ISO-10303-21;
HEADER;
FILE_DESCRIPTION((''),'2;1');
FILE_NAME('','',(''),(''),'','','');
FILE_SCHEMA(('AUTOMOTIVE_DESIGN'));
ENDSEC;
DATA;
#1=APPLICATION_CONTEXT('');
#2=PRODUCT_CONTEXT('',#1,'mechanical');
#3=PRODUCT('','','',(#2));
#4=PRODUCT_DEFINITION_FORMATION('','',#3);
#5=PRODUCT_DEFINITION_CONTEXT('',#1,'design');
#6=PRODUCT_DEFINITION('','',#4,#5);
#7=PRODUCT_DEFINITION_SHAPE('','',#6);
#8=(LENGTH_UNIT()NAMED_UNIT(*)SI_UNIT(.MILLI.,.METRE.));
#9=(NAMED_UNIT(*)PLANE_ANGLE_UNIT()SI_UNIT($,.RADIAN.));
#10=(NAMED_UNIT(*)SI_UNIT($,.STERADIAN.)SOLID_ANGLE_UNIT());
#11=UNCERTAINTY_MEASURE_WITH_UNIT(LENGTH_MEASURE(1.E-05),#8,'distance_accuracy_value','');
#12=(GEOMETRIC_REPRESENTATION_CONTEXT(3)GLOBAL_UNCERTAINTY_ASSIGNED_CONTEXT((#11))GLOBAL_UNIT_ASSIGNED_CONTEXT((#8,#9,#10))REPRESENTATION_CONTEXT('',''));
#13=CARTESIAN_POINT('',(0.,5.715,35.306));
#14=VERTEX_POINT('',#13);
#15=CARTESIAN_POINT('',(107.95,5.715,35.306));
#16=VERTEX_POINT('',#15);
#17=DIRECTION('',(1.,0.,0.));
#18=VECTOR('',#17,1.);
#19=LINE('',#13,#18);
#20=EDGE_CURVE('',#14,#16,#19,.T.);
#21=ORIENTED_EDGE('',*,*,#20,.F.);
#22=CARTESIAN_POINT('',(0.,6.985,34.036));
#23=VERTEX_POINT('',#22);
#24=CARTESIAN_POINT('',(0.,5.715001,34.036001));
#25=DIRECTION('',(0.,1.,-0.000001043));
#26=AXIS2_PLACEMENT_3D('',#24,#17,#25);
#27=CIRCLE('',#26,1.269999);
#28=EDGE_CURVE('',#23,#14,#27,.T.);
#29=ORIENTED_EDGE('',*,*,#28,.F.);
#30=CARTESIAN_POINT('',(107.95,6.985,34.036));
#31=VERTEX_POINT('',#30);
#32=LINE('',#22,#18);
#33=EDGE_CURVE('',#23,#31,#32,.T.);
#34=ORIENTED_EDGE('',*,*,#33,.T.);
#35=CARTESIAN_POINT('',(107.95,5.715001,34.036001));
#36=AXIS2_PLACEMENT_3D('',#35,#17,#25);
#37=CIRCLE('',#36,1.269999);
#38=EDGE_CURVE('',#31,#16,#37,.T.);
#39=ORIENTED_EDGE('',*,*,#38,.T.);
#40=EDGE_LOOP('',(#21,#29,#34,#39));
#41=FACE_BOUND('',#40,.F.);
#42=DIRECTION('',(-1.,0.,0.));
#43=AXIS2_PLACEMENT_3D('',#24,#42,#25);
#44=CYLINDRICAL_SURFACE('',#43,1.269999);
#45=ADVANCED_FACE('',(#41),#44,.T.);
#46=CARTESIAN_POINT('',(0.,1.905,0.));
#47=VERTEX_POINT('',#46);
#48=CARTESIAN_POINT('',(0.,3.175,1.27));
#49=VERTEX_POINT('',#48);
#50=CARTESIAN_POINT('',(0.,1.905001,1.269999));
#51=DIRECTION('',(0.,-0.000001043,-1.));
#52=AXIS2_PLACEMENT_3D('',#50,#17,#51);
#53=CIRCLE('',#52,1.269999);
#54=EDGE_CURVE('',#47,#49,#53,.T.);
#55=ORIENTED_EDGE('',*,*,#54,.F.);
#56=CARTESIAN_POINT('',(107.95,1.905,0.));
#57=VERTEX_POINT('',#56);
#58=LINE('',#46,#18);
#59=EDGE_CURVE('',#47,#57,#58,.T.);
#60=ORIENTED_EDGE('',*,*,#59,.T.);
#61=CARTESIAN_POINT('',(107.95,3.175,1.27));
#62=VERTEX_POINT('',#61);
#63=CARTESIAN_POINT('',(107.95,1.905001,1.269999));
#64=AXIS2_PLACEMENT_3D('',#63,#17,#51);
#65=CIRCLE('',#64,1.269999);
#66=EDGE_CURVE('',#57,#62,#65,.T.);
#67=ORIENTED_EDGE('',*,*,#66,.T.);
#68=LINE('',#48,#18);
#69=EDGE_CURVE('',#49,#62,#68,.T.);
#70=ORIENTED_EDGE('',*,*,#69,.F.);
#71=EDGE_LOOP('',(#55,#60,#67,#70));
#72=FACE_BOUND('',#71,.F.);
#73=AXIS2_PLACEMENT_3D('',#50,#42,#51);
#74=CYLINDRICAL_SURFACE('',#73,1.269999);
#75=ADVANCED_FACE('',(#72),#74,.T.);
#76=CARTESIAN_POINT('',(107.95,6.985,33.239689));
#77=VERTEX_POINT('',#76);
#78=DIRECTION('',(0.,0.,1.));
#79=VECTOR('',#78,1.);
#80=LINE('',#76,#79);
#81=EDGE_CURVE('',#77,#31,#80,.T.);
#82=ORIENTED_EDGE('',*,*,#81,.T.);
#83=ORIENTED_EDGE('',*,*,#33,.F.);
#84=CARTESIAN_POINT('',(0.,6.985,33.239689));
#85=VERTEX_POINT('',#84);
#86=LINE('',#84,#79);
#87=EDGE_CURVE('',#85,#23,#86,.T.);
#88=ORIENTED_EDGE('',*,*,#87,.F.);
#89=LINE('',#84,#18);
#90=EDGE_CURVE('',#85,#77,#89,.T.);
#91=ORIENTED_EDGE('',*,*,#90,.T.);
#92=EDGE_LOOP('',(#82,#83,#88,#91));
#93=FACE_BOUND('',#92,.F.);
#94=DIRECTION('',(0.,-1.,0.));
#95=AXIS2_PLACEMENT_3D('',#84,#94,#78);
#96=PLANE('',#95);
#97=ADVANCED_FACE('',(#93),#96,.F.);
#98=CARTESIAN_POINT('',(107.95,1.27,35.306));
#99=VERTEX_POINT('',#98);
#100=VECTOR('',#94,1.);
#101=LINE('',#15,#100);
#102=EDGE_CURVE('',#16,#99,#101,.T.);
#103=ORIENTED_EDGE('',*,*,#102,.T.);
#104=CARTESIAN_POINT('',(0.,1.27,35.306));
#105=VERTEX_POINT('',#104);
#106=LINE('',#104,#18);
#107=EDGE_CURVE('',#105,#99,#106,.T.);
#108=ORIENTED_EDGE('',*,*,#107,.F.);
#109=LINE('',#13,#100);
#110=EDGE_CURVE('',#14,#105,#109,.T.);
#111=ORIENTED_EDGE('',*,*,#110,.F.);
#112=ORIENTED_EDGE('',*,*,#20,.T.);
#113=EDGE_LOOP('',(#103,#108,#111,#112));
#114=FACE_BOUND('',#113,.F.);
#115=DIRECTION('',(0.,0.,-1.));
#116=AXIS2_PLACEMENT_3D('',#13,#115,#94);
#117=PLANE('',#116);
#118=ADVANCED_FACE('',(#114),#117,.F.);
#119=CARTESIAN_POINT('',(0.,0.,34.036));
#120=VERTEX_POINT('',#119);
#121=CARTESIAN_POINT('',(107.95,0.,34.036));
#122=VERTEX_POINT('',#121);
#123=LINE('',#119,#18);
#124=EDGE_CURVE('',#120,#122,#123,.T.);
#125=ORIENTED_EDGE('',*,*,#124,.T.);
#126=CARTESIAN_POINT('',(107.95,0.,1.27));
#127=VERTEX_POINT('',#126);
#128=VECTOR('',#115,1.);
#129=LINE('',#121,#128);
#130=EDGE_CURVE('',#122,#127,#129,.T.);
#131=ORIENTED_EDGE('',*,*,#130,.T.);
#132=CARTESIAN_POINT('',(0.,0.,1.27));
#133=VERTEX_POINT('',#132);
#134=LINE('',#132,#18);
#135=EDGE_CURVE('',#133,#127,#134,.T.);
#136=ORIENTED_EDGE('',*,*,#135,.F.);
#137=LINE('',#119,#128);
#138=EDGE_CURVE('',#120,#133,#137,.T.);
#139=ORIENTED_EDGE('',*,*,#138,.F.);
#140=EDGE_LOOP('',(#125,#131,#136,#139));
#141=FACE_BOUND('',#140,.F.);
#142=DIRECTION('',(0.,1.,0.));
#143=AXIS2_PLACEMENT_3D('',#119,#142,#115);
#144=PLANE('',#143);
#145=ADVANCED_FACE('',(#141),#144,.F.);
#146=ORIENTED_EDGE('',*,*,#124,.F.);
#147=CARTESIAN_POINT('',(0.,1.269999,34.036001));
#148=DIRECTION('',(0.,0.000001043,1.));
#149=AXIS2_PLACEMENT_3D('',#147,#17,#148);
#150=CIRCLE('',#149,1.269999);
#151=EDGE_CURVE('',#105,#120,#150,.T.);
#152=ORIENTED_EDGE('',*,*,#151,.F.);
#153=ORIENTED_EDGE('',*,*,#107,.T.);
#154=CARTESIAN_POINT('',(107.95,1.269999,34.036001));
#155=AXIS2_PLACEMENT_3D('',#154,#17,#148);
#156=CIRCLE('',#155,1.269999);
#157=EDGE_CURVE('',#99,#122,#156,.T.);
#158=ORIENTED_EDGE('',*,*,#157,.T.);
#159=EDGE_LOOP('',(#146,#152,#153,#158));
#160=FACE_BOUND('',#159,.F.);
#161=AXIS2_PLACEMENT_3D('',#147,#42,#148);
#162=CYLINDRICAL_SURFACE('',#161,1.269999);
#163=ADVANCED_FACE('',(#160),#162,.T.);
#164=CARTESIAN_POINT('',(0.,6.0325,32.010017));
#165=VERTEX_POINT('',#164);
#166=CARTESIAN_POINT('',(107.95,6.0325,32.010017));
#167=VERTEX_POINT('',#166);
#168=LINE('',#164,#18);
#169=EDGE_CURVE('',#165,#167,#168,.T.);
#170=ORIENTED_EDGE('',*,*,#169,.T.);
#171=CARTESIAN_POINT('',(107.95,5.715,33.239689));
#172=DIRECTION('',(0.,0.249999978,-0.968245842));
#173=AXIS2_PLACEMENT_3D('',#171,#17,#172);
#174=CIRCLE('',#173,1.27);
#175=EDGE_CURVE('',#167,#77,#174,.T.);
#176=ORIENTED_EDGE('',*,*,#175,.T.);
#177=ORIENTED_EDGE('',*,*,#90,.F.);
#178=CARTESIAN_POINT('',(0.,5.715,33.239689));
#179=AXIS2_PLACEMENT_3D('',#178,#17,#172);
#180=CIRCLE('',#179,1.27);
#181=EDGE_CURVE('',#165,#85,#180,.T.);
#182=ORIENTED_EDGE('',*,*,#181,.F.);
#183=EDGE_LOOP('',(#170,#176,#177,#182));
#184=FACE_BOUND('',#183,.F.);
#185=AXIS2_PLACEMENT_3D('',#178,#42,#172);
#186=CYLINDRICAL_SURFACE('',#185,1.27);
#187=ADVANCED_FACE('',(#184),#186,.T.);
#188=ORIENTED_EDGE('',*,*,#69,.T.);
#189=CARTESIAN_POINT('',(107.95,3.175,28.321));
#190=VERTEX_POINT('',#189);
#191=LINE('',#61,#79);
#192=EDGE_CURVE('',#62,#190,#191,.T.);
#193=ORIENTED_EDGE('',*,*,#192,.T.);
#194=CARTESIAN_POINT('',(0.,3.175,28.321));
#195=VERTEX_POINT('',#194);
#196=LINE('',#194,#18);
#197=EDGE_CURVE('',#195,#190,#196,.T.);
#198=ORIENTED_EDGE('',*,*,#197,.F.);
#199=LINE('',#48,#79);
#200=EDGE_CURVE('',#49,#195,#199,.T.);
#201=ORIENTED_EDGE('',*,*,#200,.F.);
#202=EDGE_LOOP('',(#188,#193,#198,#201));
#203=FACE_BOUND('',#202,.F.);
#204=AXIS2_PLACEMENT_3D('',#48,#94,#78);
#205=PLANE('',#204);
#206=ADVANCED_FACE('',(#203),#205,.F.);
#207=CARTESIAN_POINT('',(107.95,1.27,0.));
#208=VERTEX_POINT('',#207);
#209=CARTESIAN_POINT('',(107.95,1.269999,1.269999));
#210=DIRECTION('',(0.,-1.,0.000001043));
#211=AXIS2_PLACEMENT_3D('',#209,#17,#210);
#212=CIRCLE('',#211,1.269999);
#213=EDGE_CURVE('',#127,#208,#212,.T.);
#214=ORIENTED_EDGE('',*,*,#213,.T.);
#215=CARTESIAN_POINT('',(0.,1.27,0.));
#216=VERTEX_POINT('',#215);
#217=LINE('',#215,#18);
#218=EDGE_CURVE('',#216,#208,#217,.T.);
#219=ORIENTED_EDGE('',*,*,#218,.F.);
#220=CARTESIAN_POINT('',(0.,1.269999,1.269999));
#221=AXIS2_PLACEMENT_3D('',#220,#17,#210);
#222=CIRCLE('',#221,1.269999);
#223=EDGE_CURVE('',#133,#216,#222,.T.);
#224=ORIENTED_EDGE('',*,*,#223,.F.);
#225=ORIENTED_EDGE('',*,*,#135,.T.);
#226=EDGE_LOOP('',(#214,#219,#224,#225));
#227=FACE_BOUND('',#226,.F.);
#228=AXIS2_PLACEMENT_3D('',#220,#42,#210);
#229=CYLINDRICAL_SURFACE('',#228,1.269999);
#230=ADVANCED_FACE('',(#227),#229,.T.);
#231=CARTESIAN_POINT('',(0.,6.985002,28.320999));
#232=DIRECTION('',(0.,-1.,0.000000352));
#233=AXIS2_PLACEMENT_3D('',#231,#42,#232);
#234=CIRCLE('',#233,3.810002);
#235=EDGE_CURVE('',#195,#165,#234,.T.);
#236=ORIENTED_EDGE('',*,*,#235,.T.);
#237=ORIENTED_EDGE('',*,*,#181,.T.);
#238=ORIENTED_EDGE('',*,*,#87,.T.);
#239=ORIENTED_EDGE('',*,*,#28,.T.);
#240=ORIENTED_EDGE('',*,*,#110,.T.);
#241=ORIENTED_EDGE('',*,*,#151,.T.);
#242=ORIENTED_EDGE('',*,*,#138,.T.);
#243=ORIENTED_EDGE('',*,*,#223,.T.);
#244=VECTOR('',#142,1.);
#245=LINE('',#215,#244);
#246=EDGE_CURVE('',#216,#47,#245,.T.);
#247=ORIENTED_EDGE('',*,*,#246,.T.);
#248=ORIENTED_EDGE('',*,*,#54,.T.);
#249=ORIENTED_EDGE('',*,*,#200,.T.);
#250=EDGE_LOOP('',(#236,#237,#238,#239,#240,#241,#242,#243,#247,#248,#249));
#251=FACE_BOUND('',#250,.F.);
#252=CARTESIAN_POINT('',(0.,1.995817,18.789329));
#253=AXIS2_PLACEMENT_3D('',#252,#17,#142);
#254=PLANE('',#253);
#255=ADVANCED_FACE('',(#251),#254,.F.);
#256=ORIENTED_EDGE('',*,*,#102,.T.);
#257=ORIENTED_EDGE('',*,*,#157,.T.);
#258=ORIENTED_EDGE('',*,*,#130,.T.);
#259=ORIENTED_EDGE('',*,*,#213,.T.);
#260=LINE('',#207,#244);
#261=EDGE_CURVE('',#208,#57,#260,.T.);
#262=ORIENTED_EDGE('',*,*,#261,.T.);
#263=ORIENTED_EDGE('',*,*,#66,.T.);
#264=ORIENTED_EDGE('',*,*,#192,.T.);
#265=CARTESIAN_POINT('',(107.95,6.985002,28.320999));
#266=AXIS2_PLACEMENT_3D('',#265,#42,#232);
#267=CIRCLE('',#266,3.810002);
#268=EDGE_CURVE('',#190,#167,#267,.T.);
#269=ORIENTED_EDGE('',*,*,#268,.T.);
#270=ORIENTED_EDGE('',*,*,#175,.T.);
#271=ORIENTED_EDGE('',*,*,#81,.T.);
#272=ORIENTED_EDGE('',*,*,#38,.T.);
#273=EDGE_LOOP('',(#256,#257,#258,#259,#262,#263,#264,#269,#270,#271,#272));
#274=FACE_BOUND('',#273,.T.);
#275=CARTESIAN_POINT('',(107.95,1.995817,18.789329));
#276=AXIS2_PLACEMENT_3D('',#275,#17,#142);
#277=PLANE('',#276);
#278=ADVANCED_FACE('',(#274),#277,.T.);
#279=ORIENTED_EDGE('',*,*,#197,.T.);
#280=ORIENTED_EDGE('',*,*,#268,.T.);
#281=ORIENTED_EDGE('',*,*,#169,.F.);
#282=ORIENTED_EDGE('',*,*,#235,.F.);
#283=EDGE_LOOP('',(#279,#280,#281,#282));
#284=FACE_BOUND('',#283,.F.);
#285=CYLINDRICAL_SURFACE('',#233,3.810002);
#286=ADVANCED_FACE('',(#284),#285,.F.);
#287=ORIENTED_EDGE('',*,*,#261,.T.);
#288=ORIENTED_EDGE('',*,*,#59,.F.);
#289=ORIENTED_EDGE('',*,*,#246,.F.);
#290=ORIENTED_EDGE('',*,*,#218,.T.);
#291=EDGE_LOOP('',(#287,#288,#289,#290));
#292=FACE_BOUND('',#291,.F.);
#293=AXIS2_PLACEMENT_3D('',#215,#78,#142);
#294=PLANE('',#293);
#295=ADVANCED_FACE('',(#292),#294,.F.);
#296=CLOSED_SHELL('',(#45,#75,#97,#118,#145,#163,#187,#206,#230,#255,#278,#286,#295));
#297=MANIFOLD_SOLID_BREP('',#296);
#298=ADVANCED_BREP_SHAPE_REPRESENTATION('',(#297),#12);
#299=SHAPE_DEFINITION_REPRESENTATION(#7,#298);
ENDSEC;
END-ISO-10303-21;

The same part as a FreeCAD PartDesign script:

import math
import FreeCAD as App
import Part
import Sketcher

V = App.Vector
Q = App.Units.Quantity

doc = App.newDocument("Part")
body = doc.addObject("PartDesign::Body", "Body")

# Sketch on YZ plane
sketch1 = doc.addObject("Sketcher::SketchObject", "Sketch")
body.addObject(sketch1)
sketch1.AttachmentSupport = (doc.YZ_Plane, [""])
sketch1.MapMode = "FlatFace"
sketch1.addGeometry([
    Part.ArcOfCircle(Part.Circle(V(1.3, 1.3, 0), V(0, 0, 1), 1.3), math.radians(180), math.radians(270)),  # 0
    Part.LineSegment(V(1.3, 0, 0), V(1.9, 0, 0)),  # 1
    Part.ArcOfCircle(Part.Circle(V(1.9, 1.3, 0), V(0, 0, 1), 1.3), math.radians(-90), math.radians(0)),  # 2
    Part.LineSegment(V(3.2, 1.3, 0), V(3.2, 28.3, 0)),  # 3
    Part.ArcOfCircle(Part.Circle(V(7, 28.3, 0), V(0, 0, 1), 3.8), math.radians(104), math.radians(180)),  # 4
    Part.ArcOfCircle(Part.Circle(V(5.7, 33.2, 0), V(0, 0, 1), 1.3), math.radians(-76), math.radians(0)),  # 5
    Part.LineSegment(V(7, 33.2, 0), V(7, 34, 0)),  # 6
    Part.ArcOfCircle(Part.Circle(V(5.7, 34, 0), V(0, 0, 1), 1.3), math.radians(0), math.radians(90)),  # 7
    Part.LineSegment(V(5.7, 35.3, 0), V(1.3, 35.3, 0)),  # 8
    Part.ArcOfCircle(Part.Circle(V(1.3, 34, 0), V(0, 0, 1), 1.3), math.radians(90), math.radians(180)),  # 9
    Part.LineSegment(V(0, 34, 0), V(0, 1.3, 0)),  # 10
], False)
sketch1.addConstraint([
    Sketcher.Constraint("Tangent", 0, 2, 1, 1),
    Sketcher.Constraint("Tangent", 1, 2, 2, 1),
    Sketcher.Constraint("Tangent", 2, 2, 3, 1),
    Sketcher.Constraint("Tangent", 3, 2, 4, 2),
    Sketcher.Constraint("Tangent", 4, 1, 5, 1),
    Sketcher.Constraint("Tangent", 5, 2, 6, 1),
    Sketcher.Constraint("Tangent", 6, 2, 7, 1),
    Sketcher.Constraint("Tangent", 7, 2, 8, 1),
    Sketcher.Constraint("Tangent", 8, 2, 9, 1),
    Sketcher.Constraint("Tangent", 9, 2, 10, 1),
    Sketcher.Constraint("Tangent", 10, 2, 0, 1),
    Sketcher.Constraint("Horizontal", 1),
    Sketcher.Constraint("Vertical", 3),
    Sketcher.Constraint("Vertical", 6),
    Sketcher.Constraint("Horizontal", 8),
    Sketcher.Constraint("Vertical", 10),
    Sketcher.Constraint("Equal", 0, 2),
    Sketcher.Constraint("Equal", 2, 5),
    Sketcher.Constraint("Equal", 5, 7),
    Sketcher.Constraint("Equal", 7, 9),
    Sketcher.Constraint("PointOnObject", 0, 2, -1),
    Sketcher.Constraint("PointOnObject", 9, 2, -2),
    Sketcher.Constraint("Radius", 0, Q("0.0499999 in")),
    Sketcher.Constraint("Radius", 4, Q("0.1500001 in")),
    Sketcher.Constraint("DistanceY", 10, 2, 10, 1, Q("1.29 in")),
    Sketcher.Constraint("DistanceX", 3, 2, 5, 3, Q("0.1 in")),
    Sketcher.Constraint("DistanceX", 1, 1, 1, 2, Q("0.025 in")),
    Sketcher.Constraint("DistanceY", 3, 1, 3, 2, Q("1.065 in")),
])
pad1 = doc.addObject("PartDesign::Pad", "Pad")
body.addObject(pad1)
pad1.Profile = sketch1
pad1.Length = Q("4.25 in")

doc.recompute()
